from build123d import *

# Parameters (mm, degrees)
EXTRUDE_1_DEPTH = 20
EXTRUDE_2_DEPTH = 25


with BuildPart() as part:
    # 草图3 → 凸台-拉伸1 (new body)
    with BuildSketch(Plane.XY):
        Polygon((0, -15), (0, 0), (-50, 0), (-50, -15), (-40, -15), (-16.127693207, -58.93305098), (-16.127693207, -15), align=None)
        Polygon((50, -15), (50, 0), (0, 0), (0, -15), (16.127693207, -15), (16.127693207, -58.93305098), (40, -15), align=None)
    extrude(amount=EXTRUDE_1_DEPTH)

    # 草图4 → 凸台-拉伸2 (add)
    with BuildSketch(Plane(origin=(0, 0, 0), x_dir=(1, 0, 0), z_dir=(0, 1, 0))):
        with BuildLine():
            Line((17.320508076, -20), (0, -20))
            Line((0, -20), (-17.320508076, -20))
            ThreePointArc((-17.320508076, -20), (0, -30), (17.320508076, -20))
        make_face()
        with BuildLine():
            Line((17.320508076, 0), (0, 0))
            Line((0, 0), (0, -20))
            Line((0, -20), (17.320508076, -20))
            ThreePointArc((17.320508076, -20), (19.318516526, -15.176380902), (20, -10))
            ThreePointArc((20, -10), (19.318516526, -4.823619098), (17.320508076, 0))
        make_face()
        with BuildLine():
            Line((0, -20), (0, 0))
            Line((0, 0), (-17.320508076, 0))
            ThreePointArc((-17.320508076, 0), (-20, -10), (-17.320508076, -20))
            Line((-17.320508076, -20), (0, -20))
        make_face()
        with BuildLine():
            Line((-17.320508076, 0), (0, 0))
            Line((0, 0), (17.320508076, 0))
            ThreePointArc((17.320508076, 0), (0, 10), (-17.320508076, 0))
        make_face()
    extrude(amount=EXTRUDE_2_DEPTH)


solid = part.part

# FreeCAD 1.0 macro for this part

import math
import FreeCAD as App
import Part
import Sketcher

doc = App.newDocument("Part")
body = doc.addObject("PartDesign::Body", "Body")

# Sketch on XY plane
sketch1 = body.newObject("Sketcher::SketchObject", "Sketch")
sketch1.AttachmentSupport = (doc.getObject("XY_Plane"), [""])
sketch1.MapMode = "FlatFace"
sketch1.addGeometry([
    Part.LineSegment(App.Vector(-50, 0, 0), App.Vector(-50, -15, 0)),  # 0
    Part.LineSegment(App.Vector(-50, -15, 0), App.Vector(-40, -15, 0)),  # 1
    Part.LineSegment(App.Vector(-40, -15, 0), App.Vector(-16, -59, 0)),  # 2
    Part.LineSegment(App.Vector(-16, -59, 0), App.Vector(-16, -15, 0)),  # 3
    Part.LineSegment(App.Vector(-16, -15, 0), App.Vector(16, -15, 0)),  # 4
    Part.LineSegment(App.Vector(16, -15, 0), App.Vector(16, -59, 0)),  # 5
    Part.LineSegment(App.Vector(16, -59, 0), App.Vector(40, -15, 0)),  # 6
    Part.LineSegment(App.Vector(40, -15, 0), App.Vector(50, -15, 0)),  # 7
    Part.LineSegment(App.Vector(50, -15, 0), App.Vector(50, 0, 0)),  # 8
    Part.LineSegment(App.Vector(50, 0, 0), App.Vector(-50, 0, 0)),  # 9
], False)
sketch1.addConstraint([
    Sketcher.Constraint("Coincident", 0, 2, 1, 1),
    Sketcher.Constraint("Coincident", 1, 2, 2, 1),
    Sketcher.Constraint("Coincident", 2, 2, 3, 1),
    Sketcher.Constraint("Coincident", 3, 2, 4, 1),
    Sketcher.Constraint("Coincident", 4, 2, 5, 1),
    Sketcher.Constraint("Coincident", 5, 2, 6, 1),
    Sketcher.Constraint("Coincident", 6, 2, 7, 1),
    Sketcher.Constraint("Coincident", 7, 2, 8, 1),
    Sketcher.Constraint("Coincident", 8, 2, 9, 1),
    Sketcher.Constraint("Coincident", 9, 2, 0, 1),
    Sketcher.Constraint("Vertical", 0),
    Sketcher.Constraint("Horizontal", 1),
    Sketcher.Constraint("Vertical", 3),
    Sketcher.Constraint("Horizontal", 4),
    Sketcher.Constraint("Vertical", 5),
    Sketcher.Constraint("Horizontal", 7),
    Sketcher.Constraint("Vertical", 8),
    Sketcher.Constraint("Horizontal", 9),
    Sketcher.Constraint("Symmetric", 8, 2, 9, 2, -1, 1),
    Sketcher.Constraint("Symmetric", 2, 2, 5, 2, -2),
    Sketcher.Constraint("Symmetric", 1, 2, 6, 2, -2),
    Sketcher.Constraint("Horizontal", 1, 2, 3, 2),
    Sketcher.Constraint("DistanceX", 1, 1, 1, 2, 10.0),
    Sketcher.Constraint("DistanceX", 9, 2, 9, 1, 100.0),
    Sketcher.Constraint("DistanceY", 0, 2, 0, 1, 15.0),
    Sketcher.Constraint("Distance", 2, 50.0),
    Sketcher.Constraint("DistanceY", 3, 1, 3, 2, 43.933051),
])
pad1 = body.newObject("PartDesign::Pad", "Pad")
pad1.Profile = sketch1
pad1.Length = 20

# Sketch on XZ plane
sketch2 = body.newObject("Sketcher::SketchObject", "Sketch001")
sketch2.AttachmentSupport = (doc.getObject("XZ_Plane"), [""])
sketch2.MapMode = "FlatFace"
sketch2.addGeometry([
    Part.ArcOfCircle(Part.Circle(App.Vector(0, 10, 0), App.Vector(0, 0, 1), 20), math.radians(150), math.radians(210)),  # 0
    Part.ArcOfCircle(Part.Circle(App.Vector(0, 10, 0), App.Vector(0, 0, 1), 20), math.radians(30), math.radians(150)),  # 1
    Part.ArcOfCircle(Part.Circle(App.Vector(0, 10, 0), App.Vector(0, 0, 1), 20), math.radians(0), math.radians(30)),  # 2
    Part.ArcOfCircle(Part.Circle(App.Vector(0, 10, 0), App.Vector(0, 0, 1), 20), math.radians(-30), math.radians(0)),  # 3
    Part.ArcOfCircle(Part.Circle(App.Vector(0, 10, 0), App.Vector(0, 0, 1), 20), math.radians(-150), math.radians(-30)),  # 4
], False)
sketch2.addConstraint([
    Sketcher.Constraint("Tangent", 0, 1, 1, 2),
    Sketcher.Constraint("Tangent", 1, 1, 2, 2),
    Sketcher.Constraint("Tangent", 2, 1, 3, 2),
    Sketcher.Constraint("Tangent", 3, 1, 4, 2),
    Sketcher.Constraint("Tangent", 4, 1, 0, 2),
    Sketcher.Constraint("Coincident", 2, 3, 0, 3),
    Sketcher.Constraint("Symmetric", 3, 1, 4, 1, -1, 1),
    Sketcher.Constraint("Symmetric", 0, 1, 1, 1, -2),
    Sketcher.Constraint("Horizontal", 4, 3, 2, 1),
    Sketcher.Constraint("Vertical", 1, 1, 3, 1),
    Sketcher.Constraint("Radius", 0, 20.0),
    Sketcher.Constraint("DistanceY", -1, 1, 0, 3, 10.0),
])
pad2 = body.newObject("PartDesign::Pad", "Pad001")
pad2.Profile = sketch2
pad2.Length = 25
pad2.Reversed = True

doc.recompute()
